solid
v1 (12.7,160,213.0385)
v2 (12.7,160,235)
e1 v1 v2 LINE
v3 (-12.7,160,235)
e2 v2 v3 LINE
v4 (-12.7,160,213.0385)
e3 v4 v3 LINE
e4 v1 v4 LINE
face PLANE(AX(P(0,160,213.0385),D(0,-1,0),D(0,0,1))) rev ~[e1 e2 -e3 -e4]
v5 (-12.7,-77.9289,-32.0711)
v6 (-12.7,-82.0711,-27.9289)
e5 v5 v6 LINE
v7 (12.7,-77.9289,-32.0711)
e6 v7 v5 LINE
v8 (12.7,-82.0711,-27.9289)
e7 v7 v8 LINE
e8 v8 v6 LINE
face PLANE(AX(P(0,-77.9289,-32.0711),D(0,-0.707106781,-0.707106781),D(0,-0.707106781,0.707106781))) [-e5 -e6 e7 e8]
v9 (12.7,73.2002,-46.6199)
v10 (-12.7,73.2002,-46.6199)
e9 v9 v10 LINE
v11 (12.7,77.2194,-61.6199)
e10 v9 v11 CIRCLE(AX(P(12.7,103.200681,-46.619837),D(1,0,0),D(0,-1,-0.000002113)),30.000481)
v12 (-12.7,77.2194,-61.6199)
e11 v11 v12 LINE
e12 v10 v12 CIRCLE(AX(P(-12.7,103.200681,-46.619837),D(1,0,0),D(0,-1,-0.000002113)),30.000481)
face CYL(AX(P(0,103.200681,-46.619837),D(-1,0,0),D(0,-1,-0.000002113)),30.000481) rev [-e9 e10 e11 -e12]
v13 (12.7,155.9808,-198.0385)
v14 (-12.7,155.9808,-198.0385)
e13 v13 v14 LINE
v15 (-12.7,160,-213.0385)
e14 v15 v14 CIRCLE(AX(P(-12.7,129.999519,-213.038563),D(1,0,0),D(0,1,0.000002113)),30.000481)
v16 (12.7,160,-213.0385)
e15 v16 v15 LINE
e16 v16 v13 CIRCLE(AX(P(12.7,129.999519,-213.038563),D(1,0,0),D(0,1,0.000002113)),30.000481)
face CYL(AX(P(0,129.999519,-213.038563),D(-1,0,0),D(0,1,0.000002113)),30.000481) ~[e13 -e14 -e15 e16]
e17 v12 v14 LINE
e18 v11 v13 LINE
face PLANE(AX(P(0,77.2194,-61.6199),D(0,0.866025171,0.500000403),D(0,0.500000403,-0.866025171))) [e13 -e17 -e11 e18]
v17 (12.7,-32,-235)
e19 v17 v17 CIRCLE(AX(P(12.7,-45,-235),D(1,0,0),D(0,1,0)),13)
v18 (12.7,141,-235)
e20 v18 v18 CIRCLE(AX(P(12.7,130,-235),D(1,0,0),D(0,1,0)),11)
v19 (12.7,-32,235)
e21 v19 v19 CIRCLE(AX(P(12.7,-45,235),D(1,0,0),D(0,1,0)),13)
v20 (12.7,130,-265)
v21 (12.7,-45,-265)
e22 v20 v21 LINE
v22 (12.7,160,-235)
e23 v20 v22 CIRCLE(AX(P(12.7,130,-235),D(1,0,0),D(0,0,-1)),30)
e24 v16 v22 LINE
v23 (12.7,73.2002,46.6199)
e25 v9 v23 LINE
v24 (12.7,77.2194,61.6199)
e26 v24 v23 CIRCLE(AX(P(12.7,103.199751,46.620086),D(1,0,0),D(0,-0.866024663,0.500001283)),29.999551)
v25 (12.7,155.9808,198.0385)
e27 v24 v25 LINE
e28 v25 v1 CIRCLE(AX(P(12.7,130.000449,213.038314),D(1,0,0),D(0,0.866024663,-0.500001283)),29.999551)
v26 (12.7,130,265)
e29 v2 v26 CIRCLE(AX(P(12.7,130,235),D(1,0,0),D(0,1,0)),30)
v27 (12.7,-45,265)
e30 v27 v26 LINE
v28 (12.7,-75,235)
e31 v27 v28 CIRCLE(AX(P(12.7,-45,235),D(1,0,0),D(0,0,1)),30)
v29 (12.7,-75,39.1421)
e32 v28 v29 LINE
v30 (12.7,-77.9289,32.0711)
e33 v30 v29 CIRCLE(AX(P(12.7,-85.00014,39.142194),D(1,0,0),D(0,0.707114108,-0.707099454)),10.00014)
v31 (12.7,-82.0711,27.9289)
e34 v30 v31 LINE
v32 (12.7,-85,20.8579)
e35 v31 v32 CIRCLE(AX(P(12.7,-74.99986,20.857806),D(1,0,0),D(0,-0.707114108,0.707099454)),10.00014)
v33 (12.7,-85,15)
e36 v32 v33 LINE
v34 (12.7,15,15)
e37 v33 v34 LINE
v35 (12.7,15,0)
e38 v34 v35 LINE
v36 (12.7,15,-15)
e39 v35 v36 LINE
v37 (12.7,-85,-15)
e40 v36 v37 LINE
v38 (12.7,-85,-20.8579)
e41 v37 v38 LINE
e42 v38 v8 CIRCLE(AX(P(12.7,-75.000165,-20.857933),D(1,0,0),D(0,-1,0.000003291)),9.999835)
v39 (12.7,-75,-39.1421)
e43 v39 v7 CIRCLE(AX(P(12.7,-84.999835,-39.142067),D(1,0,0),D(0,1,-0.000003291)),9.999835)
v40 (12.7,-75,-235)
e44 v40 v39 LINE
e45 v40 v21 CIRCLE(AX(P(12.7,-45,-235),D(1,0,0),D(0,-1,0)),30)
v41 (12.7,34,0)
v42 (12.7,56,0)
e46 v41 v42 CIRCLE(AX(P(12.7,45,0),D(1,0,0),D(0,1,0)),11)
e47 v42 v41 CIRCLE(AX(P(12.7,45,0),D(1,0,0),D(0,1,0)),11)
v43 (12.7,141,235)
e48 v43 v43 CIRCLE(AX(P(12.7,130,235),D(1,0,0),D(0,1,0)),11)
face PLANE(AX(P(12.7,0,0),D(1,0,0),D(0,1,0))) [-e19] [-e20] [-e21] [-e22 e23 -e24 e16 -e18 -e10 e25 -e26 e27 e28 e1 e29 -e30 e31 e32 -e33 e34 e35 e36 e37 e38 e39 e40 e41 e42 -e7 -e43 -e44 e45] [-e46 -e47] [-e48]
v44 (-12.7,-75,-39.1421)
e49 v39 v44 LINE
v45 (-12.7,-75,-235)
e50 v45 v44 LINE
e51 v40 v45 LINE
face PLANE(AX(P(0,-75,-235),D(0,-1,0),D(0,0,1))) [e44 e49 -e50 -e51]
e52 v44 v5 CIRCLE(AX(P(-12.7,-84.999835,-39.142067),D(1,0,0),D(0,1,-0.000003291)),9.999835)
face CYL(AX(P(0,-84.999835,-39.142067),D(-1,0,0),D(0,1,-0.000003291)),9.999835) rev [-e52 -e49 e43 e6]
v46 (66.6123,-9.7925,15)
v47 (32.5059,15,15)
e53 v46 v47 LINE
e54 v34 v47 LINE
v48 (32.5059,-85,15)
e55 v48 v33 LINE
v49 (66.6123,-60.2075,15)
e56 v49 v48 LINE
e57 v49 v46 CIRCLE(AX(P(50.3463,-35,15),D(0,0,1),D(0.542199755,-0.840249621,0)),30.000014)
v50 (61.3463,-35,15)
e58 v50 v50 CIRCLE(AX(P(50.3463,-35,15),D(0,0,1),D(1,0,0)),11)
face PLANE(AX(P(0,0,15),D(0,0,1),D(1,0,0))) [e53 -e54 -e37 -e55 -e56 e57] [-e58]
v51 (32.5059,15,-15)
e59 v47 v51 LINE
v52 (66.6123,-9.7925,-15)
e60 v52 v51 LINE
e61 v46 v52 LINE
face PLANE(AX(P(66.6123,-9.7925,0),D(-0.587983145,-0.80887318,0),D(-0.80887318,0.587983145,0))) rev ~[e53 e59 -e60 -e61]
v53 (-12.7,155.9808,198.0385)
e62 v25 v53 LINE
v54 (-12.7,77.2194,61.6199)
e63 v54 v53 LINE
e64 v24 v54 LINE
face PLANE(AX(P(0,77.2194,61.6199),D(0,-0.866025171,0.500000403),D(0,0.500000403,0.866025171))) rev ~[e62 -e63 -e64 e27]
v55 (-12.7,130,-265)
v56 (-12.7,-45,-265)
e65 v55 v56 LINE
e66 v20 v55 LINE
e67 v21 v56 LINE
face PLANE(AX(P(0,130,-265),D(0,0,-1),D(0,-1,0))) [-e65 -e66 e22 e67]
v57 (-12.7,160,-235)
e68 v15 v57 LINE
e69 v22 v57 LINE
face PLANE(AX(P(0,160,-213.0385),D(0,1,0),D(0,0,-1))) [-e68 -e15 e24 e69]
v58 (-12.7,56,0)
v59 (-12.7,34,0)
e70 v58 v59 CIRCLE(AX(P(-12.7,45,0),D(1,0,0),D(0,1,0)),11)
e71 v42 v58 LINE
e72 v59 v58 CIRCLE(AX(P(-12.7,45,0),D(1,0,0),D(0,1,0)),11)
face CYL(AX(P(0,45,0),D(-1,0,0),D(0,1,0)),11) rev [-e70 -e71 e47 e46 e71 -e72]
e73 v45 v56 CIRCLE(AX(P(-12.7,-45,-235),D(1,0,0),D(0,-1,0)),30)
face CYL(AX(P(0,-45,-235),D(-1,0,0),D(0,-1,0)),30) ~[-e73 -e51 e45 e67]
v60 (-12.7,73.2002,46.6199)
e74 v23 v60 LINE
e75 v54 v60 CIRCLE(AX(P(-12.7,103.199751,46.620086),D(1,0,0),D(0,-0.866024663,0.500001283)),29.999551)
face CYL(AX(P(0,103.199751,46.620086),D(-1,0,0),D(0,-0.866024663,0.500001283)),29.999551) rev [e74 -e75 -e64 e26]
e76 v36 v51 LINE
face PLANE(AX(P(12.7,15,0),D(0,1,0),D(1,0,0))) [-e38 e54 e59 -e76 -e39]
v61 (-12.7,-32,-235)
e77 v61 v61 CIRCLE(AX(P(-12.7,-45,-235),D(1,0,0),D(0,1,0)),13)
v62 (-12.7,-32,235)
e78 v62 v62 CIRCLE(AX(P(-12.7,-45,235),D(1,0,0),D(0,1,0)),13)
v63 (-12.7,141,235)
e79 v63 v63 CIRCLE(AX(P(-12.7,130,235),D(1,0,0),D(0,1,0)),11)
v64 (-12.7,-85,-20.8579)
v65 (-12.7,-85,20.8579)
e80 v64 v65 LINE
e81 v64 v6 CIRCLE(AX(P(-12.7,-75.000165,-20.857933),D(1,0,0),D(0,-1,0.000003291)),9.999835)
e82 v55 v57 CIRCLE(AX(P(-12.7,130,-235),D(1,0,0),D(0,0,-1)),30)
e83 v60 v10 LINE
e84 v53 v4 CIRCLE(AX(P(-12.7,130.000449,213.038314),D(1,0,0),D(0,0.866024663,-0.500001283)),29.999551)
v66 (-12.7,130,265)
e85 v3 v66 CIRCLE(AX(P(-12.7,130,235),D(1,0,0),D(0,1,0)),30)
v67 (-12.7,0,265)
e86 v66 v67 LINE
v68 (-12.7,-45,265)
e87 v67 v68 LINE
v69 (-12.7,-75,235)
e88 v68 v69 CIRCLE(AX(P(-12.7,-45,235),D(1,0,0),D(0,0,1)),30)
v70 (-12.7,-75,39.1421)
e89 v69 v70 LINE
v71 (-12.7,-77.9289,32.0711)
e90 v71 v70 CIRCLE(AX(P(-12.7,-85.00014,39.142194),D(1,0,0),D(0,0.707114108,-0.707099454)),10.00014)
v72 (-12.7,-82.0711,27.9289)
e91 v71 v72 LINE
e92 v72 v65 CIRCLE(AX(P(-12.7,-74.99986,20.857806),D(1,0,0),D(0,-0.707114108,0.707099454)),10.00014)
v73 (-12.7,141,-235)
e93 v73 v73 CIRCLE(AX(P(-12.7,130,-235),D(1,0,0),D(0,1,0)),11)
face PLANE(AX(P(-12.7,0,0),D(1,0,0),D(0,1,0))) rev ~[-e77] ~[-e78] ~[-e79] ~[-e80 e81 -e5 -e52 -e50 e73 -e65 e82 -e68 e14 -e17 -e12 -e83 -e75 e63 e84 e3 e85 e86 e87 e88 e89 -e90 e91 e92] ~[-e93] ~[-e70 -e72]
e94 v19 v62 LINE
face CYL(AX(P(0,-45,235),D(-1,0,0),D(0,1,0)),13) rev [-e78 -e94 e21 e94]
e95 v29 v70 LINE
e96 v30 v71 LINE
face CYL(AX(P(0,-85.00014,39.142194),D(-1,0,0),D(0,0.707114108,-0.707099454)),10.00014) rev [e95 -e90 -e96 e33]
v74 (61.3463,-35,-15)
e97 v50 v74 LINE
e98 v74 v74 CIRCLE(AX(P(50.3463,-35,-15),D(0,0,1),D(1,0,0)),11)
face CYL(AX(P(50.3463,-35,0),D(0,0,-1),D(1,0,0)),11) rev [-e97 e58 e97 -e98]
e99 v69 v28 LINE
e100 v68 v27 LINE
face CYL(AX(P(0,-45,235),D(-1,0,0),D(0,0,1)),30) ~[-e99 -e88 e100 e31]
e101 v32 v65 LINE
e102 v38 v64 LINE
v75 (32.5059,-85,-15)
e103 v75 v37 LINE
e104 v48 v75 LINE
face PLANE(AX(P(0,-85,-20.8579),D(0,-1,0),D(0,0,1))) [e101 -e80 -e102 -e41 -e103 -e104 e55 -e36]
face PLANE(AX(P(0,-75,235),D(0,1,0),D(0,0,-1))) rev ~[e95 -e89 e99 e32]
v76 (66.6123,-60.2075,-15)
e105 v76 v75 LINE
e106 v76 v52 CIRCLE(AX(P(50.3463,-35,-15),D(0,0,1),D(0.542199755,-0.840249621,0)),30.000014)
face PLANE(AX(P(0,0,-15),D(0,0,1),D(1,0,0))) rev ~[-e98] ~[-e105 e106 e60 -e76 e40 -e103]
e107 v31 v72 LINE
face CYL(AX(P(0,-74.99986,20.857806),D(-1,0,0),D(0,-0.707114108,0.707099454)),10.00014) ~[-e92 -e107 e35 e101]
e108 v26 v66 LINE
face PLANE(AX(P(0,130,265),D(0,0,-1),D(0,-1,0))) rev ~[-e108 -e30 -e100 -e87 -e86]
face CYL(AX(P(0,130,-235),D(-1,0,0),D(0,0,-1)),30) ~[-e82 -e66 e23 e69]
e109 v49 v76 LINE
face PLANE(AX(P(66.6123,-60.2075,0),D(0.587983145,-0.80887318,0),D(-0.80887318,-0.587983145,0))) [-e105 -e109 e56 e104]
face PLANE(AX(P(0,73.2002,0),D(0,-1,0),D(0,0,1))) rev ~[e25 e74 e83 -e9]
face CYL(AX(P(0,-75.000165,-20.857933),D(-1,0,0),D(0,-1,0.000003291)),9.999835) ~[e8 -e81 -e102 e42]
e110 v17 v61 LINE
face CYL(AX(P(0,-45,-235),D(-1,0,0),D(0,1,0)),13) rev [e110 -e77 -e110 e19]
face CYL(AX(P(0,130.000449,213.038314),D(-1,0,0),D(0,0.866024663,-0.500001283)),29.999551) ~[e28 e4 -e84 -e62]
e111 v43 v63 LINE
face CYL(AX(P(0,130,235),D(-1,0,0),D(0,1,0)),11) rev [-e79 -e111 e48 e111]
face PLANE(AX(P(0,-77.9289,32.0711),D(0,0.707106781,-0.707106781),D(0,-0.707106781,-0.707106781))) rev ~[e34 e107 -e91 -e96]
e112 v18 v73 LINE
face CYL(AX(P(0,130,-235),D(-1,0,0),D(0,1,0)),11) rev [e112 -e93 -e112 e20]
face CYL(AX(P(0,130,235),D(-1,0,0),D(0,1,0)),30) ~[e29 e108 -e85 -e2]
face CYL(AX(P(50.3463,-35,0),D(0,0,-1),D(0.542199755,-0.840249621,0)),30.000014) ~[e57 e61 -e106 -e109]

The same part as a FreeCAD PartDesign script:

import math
import FreeCAD as App
import Part
import Sketcher
Q = App.Units.Quantity

doc = App.newDocument("Part")
body = doc.addObject("PartDesign::Body", "Body")

# Sketch on YZ plane
sketch1 = doc.addObject("Sketcher::SketchObject", "Sketch")
body.addObject(sketch1)
sketch1.AttachmentSupport = (doc.YZ_Plane, [""])
sketch1.MapMode = "FlatFace"
sketch1.addGeometry(Part.LineSegment(App.Vector(130, 265, 0), App.Vector(0, 265, 0)), False)
sketch1.addGeometry(Part.LineSegment(App.Vector(0, 265, 0), App.Vector(-45, 265, 0)), False)
sketch1.addGeometry(Part.ArcOfCircle(Part.Circle(App.Vector(-45, 235, 0), App.Vector(0, 0, 1), 30), math.radians(90), math.radians(180)), False)
sketch1.addGeometry(Part.LineSegment(App.Vector(-75, 235, 0), App.Vector(-75, 39.1421, 0)), False)
sketch1.addGeometry(Part.ArcOfCircle(Part.Circle(App.Vector(-85, 39.1421, 0), App.Vector(0, 0, 1), 9.999975), math.radians(-44.999595), math.radians(0)), False)
sketch1.addGeometry(Part.LineSegment(App.Vector(-77.9289, 32.0711, 0), App.Vector(-82.0711, 27.9289, 0)), False)
sketch1.addGeometry(Part.ArcOfCircle(Part.Circle(App.Vector(-75, 20.8579, 0), App.Vector(0, 0, 1), 9.999975), math.radians(135.000405), math.radians(180)), False)
sketch1.addGeometry(Part.LineSegment(App.Vector(-85, 20.8579, 0), App.Vector(-85, -20.8579, 0)), False)
sketch1.addGeometry(Part.ArcOfCircle(Part.Circle(App.Vector(-75, -20.8579, 0), App.Vector(0, 0, 1), 10), math.radians(180), math.radians(224.999595)), False)
sketch1.addGeometry(Part.LineSegment(App.Vector(-82.0711, -27.9289, 0), App.Vector(-77.9289, -32.0711, 0)), False)
sketch1.addGeometry(Part.ArcOfCircle(Part.Circle(App.Vector(-85, -39.1421, 0), App.Vector(0, 0, 1), 10), math.radians(0), math.radians(44.999595)), False)
sketch1.addGeometry(Part.LineSegment(App.Vector(-75, -39.1421, 0), App.Vector(-75, -235, 0)), False)
sketch1.addGeometry(Part.ArcOfCircle(Part.Circle(App.Vector(-45, -235, 0), App.Vector(0, 0, 1), 30), math.radians(180), math.radians(270)), False)
sketch1.addGeometry(Part.LineSegment(App.Vector(-45, -265, 0), App.Vector(130, -265, 0)), False)
sketch1.addGeometry(Part.ArcOfCircle(Part.Circle(App.Vector(130, -235, 0), App.Vector(0, 0, 1), 30), math.radians(-90), math.radians(0)), False)
sketch1.addGeometry(Part.LineSegment(App.Vector(160, -235, 0), App.Vector(160, -213.0385, 0)), False)
sketch1.addGeometry(Part.ArcOfCircle(Part.Circle(App.Vector(130, -213.0385, 0), App.Vector(0, 0, 1), 30), math.radians(0), math.radians(29.999964)), False)
sketch1.addGeometry(Part.LineSegment(App.Vector(155.9808, -198.0385, 0), App.Vector(77.2194, -61.6199, 0)), False)
sketch1.addGeometry(Part.ArcOfCircle(Part.Circle(App.Vector(103.2002, -46.6199, 0), App.Vector(0, 0, 1), 30), math.radians(180), math.radians(209.999964)), False)
sketch1.addGeometry(Part.LineSegment(App.Vector(73.2002, -46.6199, 0), App.Vector(73.2002, 46.6199, 0)), False)
sketch1.addGeometry(Part.ArcOfCircle(Part.Circle(App.Vector(103.2002, 46.6199, 0), App.Vector(0, 0, 1), 30.000033), math.radians(150.000036), math.radians(180)), False)
sketch1.addGeometry(Part.LineSegment(App.Vector(77.2194, 61.6199, 0), App.Vector(155.9808, 198.0385, 0)), False)
sketch1.addGeometry(Part.ArcOfCircle(Part.Circle(App.Vector(130, 213.0385, 0), App.Vector(0, 0, 1), 30.000033), math.radians(-29.999964), math.radians(0)), False)
sketch1.addGeometry(Part.LineSegment(App.Vector(160, 213.0385, 0), App.Vector(160, 235, 0)), False)
sketch1.addGeometry(Part.ArcOfCircle(Part.Circle(App.Vector(130, 235, 0), App.Vector(0, 0, 1), 30), math.radians(0), math.radians(90)), False)
sketch1.addGeometry(Part.Circle(App.Vector(-45, -235, 0), App.Vector(0, 0, 1), 13), False)
sketch1.addGeometry(Part.Circle(App.Vector(130, -235, 0), App.Vector(0, 0, 1), 11), False)
sketch1.addGeometry(Part.Circle(App.Vector(-45, 235, 0), App.Vector(0, 0, 1), 13), False)
sketch1.addGeometry(Part.Circle(App.Vector(45, 0, 0), App.Vector(0, 0, 1), 11), False)
sketch1.addGeometry(Part.Circle(App.Vector(130, 235, 0), App.Vector(0, 0, 1), 11), False)
sketch1.addConstraint(Sketcher.Constraint("Coincident", 0, 2, 1, 1))
sketch1.addConstraint(Sketcher.Constraint("Tangent", 1, 2, 2, 1))
sketch1.addConstraint(Sketcher.Constraint("Tangent", 2, 2, 3, 1))
sketch1.addConstraint(Sketcher.Constraint("Tangent", 3, 2, 4, 2))
sketch1.addConstraint(Sketcher.Constraint("Tangent", 4, 1, 5, 1))
sketch1.addConstraint(Sketcher.Constraint("Tangent", 5, 2, 6, 1))
sketch1.addConstraint(Sketcher.Constraint("Tangent", 6, 2, 7, 1))
sketch1.addConstraint(Sketcher.Constraint("Tangent", 7, 2, 8, 1))
sketch1.addConstraint(Sketcher.Constraint("Tangent", 8, 2, 9, 1))
sketch1.addConstraint(Sketcher.Constraint("Tangent", 9, 2, 10, 2))
sketch1.addConstraint(Sketcher.Constraint("Tangent", 10, 1, 11, 1))
sketch1.addConstraint(Sketcher.Constraint("Tangent", 11, 2, 12, 1))
sketch1.addConstraint(Sketcher.Constraint("Tangent", 12, 2, 13, 1))
sketch1.addConstraint(Sketcher.Constraint("Tangent", 13, 2, 14, 1))
sketch1.addConstraint(Sketcher.Constraint("Tangent", 14, 2, 15, 1))
sketch1.addConstraint(Sketcher.Constraint("Tangent", 15, 2, 16, 1))
sketch1.addConstraint(Sketcher.Constraint("Tangent", 16, 2, 17, 1))
sketch1.addConstraint(Sketcher.Constraint("Tangent", 17, 2, 18, 2))
sketch1.addConstraint(Sketcher.Constraint("Tangent", 18, 1, 19, 1))
sketch1.addConstraint(Sketcher.Constraint("Tangent", 19, 2, 20, 2))
sketch1.addConstraint(Sketcher.Constraint("Tangent", 20, 1, 21, 1))
sketch1.addConstraint(Sketcher.Constraint("Tangent", 21, 2, 22, 1))
sketch1.addConstraint(Sketcher.Constraint("Tangent", 22, 2, 23, 1))
sketch1.addConstraint(Sketcher.Constraint("Tangent", 23, 2, 24, 1))
sketch1.addConstraint(Sketcher.Constraint("Tangent", 24, 2, 0, 1))
sketch1.addConstraint(Sketcher.Constraint("Horizontal", 0))
sketch1.addConstraint(Sketcher.Constraint("Horizontal", 1))
sketch1.addConstraint(Sketcher.Constraint("Vertical", 3))
sketch1.addConstraint(Sketcher.Constraint("Vertical", 7))
sketch1.addConstraint(Sketcher.Constraint("Vertical", 11))
sketch1.addConstraint(Sketcher.Constraint("Horizontal", 13))
sketch1.addConstraint(Sketcher.Constraint("Vertical", 15))
sketch1.addConstraint(Sketcher.Constraint("Vertical", 19))
sketch1.addConstraint(Sketcher.Constraint("Vertical", 23))
sketch1.addConstraint(Sketcher.Constraint("Coincident", 25, 3, 12, 3))
sketch1.addConstraint(Sketcher.Constraint("Coincident", 26, 3, 14, 3))
sketch1.addConstraint(Sketcher.Constraint("Coincident", 27, 3, 2, 3))
sketch1.addConstraint(Sketcher.Constraint("Coincident", 29, 3, 24, 3))
sketch1.addConstraint(Sketcher.Constraint("Equal", 4, 6))
sketch1.addConstraint(Sketcher.Constraint("Equal", 6, 8))
sketch1.addConstraint(Sketcher.Constraint("Equal", 8, 10))
sketch1.addConstraint(Sketcher.Constraint("Equal", 2, 12))
sketch1.addConstraint(Sketcher.Constraint("Equal", 12, 14))
sketch1.addConstraint(Sketcher.Constraint("Equal", 14, 16))
sketch1.addConstraint(Sketcher.Constraint("Equal", 16, 18))
sketch1.addConstraint(Sketcher.Constraint("Equal", 18, 20))
sketch1.addConstraint(Sketcher.Constraint("Equal", 20, 22))
sketch1.addConstraint(Sketcher.Constraint("Equal", 22, 24))
sketch1.addConstraint(Sketcher.Constraint("Equal", 25, 27))
sketch1.addConstraint(Sketcher.Constraint("Equal", 26, 28))
sketch1.addConstraint(Sketcher.Constraint("Equal", 28, 29))
sketch1.addConstraint(Sketcher.Constraint("Symmetric", 4, 3, 10, 3, -1))
sketch1.addConstraint(Sketcher.Constraint("Symmetric", 16, 3, 22, 3, -1))
sketch1.addConstraint(Sketcher.Constraint("PointOnObject", 28, 3, -1))
sketch1.addConstraint(Sketcher.Constraint("PointOnObject", 0, 2, -2))
sketch1.addConstraint(Sketcher.Constraint("Perpendicular", 5, 9))
sketch1.addConstraint(Sketcher.Constraint("Vertical", 8, 3, 2, 2))
sketch1.addConstraint(Sketcher.Constraint("Vertical", 5, 2, 8, 2))
sketch1.addConstraint(Sketcher.Constraint("Vertical", 17, 2, 20, 1))
sketch1.addConstraint(Sketcher.Constraint("Equal", 3, 11))
sketch1.addConstraint(Sketcher.Constraint("Diameter", 25, 26.0))
sketch1.addConstraint(Sketcher.Constraint("Diameter", 26, 22.0))
sketch1.addConstraint(Sketcher.Constraint("Radius", 2, 30.0))
sketch1.addConstraint(Sketcher.Constraint("Radius", 4, 10.0))
sketch1.addConstraint(Sketcher.Constraint("DistanceX", 1, 2, 1, 1, 45.0))
sketch1.addConstraint(Sketcher.Constraint("DistanceX", -1, 1, 28, 3, 45.0))
sketch1.addConstraint(Sketcher.Constraint("DistanceY", 12, 3, 2, 3, 470.0))
sketch1.addConstraint(Sketcher.Constraint("DistanceX", 0, 2, 0, 1, 130.0))
sketch1.addConstraint(Sketcher.Constraint("Angle", 17, Q("120 deg")))
sketch1.addConstraint(Sketcher.Constraint("DistanceY", 8, 3, 4, 3, 60.0))
sketch1.addConstraint(Sketcher.Constraint("DistanceY", 18, 3, -1, 1, 46.62))
sketch1.addConstraint(Sketcher.Constraint("DistanceY", 15, 1, 15, 2, 21.9615))
pad1 = doc.addObject("PartDesign::Pad", "Pad")
body.addObject(pad1)
pad1.Profile = sketch1
pad1.Length = 25.4
pad1.Midplane = True

# Sketch on XY plane
sketch2 = doc.addObject("Sketcher::SketchObject", "Sketch001")
body.addObject(sketch2)
sketch2.AttachmentSupport = (doc.XY_Plane, [""])
sketch2.MapMode = "FlatFace"
sketch2.addGeometry(Part.LineSegment(App.Vector(12.7, 15, 0), App.Vector(12.7, -85, 0)), False)
sketch2.addGeometry(Part.LineSegment(App.Vector(12.7, -85, 0), App.Vector(32.5059, -85, 0)), False)
sketch2.addGeometry(Part.LineSegment(App.Vector(32.5059, -85, 0), App.Vector(66.6123, -60.2075, 0)), False)
sketch2.addGeometry(Part.ArcOfCircle(Part.Circle(App.Vector(50.3463, -35, 0), App.Vector(0, 0, 1), 30.000014), math.radians(-57.166488), math.radians(57.166488)), False)
sketch2.addGeometry(Part.LineSegment(App.Vector(66.6123, -9.7925, 0), App.Vector(32.5059, 15, 0)), False)
sketch2.addGeometry(Part.LineSegment(App.Vector(32.5059, 15, 0), App.Vector(12.7, 15, 0)), False)
sketch2.addGeometry(Part.Circle(App.Vector(50.3463, -35, 0), App.Vector(0, 0, 1), 11), False)
sketch2.addConstraint(Sketcher.Constraint("Coincident", 0, 2, 1, 1))
sketch2.addConstraint(Sketcher.Constraint("Coincident", 1, 2, 2, 1))
sketch2.addConstraint(Sketcher.Constraint("Coincident", 2, 2, 3, 1))
sketch2.addConstraint(Sketcher.Constraint("Coincident", 3, 2, 4, 1))
sketch2.addConstraint(Sketcher.Constraint("Coincident", 4, 2, 5, 1))
sketch2.addConstraint(Sketcher.Constraint("Coincident", 5, 2, 0, 1))
sketch2.addConstraint(Sketcher.Constraint("Vertical", 0))
sketch2.addConstraint(Sketcher.Constraint("Horizontal", 1))
sketch2.addConstraint(Sketcher.Constraint("Horizontal", 5))
sketch2.addConstraint(Sketcher.Constraint("Coincident", 6, 3, 3, 3))
sketch2.addConstraint(Sketcher.Constraint("Vertical", 2, 2, 3, 2))
sketch2.addConstraint(Sketcher.Constraint("Vertical", 1, 2, 4, 2))
sketch2.addConstraint(Sketcher.Constraint("Equal", 2, 4))
sketch2.addConstraint(Sketcher.Constraint("Diameter", 6, 22.0))
sketch2.addConstraint(Sketcher.Constraint("Radius", 3, 30.0))
sketch2.addConstraint(Sketcher.Constraint("DistanceY", 0, 2, 0, 1, 100.0))
sketch2.addConstraint(Sketcher.Constraint("DistanceY", 3, 3, -1, 1, 35.0))
sketch2.addConstraint(Sketcher.Constraint("DistanceX", -1, 1, 0, 2, 12.7))
sketch2.addConstraint(Sketcher.Constraint("DistanceX", 1, 1, 1, 2, 19.806))
sketch2.addConstraint(Sketcher.Constraint("DistanceX", 3, 3, 2, 2, 16.266))
sketch2.addConstraint(Sketcher.Constraint("Distance", 2, 42.1653))
pad2 = doc.addObject("PartDesign::Pad", "Pad001")
body.addObject(pad2)
pad2.Profile = sketch2
pad2.Length = 30
pad2.Midplane = True

doc.recompute()
